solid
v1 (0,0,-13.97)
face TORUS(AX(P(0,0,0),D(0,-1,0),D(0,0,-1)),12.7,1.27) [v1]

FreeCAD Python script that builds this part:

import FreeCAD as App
import Part
import Sketcher
Q = App.Units.Quantity

doc = App.newDocument("Part")
body = doc.addObject("PartDesign::Body", "Body")

# Sketch on XY plane
sketch1 = body.newObject("Sketcher::SketchObject", "Sketch")
sketch1.AttachmentSupport = (doc.getObject("XY_Plane"), [""])
sketch1.MapMode = "FlatFace"
sketch1.addGeometry(Part.Circle(App.Vector(-12.7, 0, 0), App.Vector(0, 0, 1), 1.3), False)
sketch1.addConstraint([
    Sketcher.Constraint("PointOnObject", 0, 3, -1),
    Sketcher.Constraint("Diameter", 0, Q("0.1 in")),
    Sketcher.Constraint("DistanceX", 0, 3, -1, 1, Q("0.5 in")),
])
revolution = body.newObject("PartDesign::Revolution", "Revolution")
revolution.Profile = sketch1
revolution.ReferenceAxis = (sketch1, ["V_Axis"])
revolution.Angle = 360

doc.recompute()
